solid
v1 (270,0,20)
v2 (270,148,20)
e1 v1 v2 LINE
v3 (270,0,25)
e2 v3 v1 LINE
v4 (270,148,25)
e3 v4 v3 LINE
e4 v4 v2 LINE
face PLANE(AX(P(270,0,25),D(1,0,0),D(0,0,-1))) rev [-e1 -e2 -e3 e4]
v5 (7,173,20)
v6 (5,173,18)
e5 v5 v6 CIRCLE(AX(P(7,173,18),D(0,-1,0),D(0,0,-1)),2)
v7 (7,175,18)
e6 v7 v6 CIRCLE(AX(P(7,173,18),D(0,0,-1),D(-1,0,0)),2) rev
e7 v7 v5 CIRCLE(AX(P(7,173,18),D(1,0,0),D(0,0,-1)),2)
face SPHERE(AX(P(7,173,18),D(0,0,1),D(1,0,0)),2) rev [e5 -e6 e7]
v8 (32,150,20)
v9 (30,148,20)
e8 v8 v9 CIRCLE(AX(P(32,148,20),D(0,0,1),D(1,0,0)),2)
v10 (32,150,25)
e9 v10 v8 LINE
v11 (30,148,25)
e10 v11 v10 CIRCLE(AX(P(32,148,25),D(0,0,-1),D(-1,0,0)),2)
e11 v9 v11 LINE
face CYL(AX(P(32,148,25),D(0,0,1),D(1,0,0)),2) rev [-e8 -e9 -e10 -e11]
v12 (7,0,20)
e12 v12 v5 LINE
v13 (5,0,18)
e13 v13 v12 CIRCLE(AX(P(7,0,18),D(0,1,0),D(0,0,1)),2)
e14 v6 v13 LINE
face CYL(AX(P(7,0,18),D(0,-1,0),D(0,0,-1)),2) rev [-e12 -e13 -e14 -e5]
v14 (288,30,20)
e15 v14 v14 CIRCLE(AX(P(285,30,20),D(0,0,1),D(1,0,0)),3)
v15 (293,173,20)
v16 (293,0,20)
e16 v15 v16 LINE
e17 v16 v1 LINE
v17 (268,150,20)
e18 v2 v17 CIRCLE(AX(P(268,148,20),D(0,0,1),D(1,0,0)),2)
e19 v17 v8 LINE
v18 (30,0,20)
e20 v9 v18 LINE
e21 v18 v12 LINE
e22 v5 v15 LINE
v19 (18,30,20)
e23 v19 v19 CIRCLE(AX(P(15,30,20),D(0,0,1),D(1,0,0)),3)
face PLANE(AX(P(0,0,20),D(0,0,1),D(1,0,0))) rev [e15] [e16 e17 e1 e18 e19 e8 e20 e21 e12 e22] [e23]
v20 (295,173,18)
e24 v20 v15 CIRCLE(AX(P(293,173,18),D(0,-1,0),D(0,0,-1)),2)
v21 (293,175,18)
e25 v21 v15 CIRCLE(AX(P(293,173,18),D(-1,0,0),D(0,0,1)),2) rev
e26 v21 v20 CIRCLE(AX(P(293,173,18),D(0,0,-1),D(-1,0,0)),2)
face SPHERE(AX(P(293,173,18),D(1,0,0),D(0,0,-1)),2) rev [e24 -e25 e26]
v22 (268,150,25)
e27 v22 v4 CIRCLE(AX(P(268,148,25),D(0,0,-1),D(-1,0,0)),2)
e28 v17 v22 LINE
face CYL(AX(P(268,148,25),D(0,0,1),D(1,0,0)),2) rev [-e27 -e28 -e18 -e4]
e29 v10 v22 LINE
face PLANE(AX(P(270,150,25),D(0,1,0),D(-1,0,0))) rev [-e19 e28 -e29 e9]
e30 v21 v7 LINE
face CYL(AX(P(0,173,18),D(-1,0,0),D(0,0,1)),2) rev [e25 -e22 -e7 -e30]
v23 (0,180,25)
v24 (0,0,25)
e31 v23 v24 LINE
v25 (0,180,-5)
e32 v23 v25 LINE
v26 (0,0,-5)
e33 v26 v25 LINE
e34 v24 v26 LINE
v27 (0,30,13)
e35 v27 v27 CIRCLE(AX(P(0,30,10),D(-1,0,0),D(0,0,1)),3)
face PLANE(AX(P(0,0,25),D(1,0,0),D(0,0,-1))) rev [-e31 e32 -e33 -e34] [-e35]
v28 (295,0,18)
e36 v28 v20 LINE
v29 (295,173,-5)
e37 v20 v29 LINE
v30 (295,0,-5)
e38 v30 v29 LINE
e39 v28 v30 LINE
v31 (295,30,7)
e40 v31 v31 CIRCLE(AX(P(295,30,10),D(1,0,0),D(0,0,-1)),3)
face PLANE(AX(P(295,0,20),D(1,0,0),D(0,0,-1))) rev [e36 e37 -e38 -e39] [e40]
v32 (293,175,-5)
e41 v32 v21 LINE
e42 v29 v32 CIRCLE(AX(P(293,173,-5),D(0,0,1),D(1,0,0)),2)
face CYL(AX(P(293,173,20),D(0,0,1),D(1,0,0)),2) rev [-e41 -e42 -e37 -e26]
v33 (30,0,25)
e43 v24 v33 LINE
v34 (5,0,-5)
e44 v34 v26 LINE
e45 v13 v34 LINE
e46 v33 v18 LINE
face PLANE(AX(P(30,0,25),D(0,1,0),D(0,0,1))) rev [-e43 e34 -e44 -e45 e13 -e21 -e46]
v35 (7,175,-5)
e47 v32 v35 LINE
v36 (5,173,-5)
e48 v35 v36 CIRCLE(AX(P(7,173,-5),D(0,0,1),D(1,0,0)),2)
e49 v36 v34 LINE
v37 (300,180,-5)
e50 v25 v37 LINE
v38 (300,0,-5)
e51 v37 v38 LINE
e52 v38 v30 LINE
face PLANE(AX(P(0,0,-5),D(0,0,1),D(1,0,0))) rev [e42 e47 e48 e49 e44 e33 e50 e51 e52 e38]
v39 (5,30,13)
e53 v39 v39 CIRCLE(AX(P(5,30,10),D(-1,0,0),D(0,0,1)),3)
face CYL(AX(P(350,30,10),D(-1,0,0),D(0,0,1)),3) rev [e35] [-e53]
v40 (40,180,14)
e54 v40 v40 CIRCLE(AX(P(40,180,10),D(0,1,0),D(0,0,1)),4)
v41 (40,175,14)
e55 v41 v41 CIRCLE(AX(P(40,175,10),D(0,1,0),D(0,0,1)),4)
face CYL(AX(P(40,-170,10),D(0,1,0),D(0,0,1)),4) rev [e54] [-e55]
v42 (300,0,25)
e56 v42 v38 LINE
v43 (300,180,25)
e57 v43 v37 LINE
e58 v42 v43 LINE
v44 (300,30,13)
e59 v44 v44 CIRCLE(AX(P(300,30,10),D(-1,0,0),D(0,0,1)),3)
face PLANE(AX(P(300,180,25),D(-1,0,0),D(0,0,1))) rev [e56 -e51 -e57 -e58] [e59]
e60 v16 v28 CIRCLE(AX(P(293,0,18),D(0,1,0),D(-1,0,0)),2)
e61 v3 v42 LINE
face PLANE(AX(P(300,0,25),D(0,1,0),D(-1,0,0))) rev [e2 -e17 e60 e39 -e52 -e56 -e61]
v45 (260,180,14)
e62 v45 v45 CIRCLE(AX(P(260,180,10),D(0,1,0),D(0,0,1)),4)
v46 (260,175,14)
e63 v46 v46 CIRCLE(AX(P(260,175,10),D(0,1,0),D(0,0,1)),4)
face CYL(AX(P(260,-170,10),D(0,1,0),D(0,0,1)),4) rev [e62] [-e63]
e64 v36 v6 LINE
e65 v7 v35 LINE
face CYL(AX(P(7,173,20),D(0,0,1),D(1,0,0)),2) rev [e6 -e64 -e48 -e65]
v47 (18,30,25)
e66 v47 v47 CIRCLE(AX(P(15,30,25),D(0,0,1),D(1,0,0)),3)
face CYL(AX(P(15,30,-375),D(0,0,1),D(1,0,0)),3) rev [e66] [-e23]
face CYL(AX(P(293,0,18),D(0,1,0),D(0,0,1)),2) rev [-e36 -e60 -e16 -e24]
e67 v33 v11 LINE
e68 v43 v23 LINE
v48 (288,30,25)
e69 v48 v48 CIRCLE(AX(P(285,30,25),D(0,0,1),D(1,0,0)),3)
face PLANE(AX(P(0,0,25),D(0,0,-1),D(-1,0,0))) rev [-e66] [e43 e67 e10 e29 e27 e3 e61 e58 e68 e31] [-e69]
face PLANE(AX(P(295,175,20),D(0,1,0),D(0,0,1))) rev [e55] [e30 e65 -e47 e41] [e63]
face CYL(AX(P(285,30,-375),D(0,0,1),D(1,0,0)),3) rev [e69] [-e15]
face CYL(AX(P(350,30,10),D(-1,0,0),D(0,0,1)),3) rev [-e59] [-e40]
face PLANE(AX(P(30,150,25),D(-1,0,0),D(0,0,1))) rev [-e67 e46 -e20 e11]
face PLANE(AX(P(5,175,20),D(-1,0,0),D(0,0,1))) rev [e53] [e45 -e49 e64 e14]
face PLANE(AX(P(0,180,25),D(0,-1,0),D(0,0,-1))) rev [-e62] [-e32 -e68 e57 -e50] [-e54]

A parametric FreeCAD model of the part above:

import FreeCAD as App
import Part
import Sketcher


def edges_at(feature, points):
    """Names of the edges that pass closest to the given points."""
    edges = feature.Shape.Edges
    near = lambda p: min(range(len(edges)), key=lambda i: edges[i].distToShape(Part.Vertex(*p))[0])
    return sorted({f"Edge{near(p) + 1}" for p in points})

doc = App.newDocument("Part")
params = doc.addObject("Spreadsheet::Sheet", "Params")
for row, (alias, value) in enumerate([
    ("sketch1_width", "30 mm"),
    ("sketch1_width2", "240 mm"),
    ("sketch1_height", "180 mm"),
    ("sketch1_height2", "150 mm"),
    ("pad1_length", "25 mm"),
    ("sketch2_width", "25 mm"),
    ("sketch2_width2", "290 mm"),
    ("sketch2_height", "175 mm"),
    ("sketch2_height2", "150 mm"),
    ("pocket1_length", "20 mm"),
    ("sketch3_diameter", "6 mm"),
    ("pocket2_length", "400 mm"),
    ("sketch4_width", "5 mm"),
    ("sketch4_width2", "290 mm"),
    ("sketch4_height", "180 mm"),
    ("sketch4_height2", "175 mm"),
    ("pad2_length", "5 mm"),
    ("sketch5_diameter", "6 mm"),
    ("pocket3_length", "350 mm"),
    ("fillet_radius", "2 mm"),
    ("sketch6_diameter", "8 mm"),
    ("pocket4_length", "350 mm"),
], start=1):
    params.set(f"A{row}", alias)
    params.set(f"B{row}", "=" + value)
    params.setAlias(f"B{row}", alias)

body = doc.addObject("PartDesign::Body", "Body")

# Sketch on XY plane
sketch1 = body.newObject("Sketcher::SketchObject", "Sketch")
sketch1.AttachmentSupport = (doc.getObject("XY_Plane"), [""])
sketch1.MapMode = "FlatFace"
sketch1.addGeometry([
    Part.LineSegment(App.Vector(0, 180, 0), App.Vector(0, 0, 0)),  # 0
    Part.LineSegment(App.Vector(0, 0, 0), App.Vector(30, 0, 0)),  # 1
    Part.LineSegment(App.Vector(30, 0, 0), App.Vector(30, 150, 0)),  # 2
    Part.LineSegment(App.Vector(30, 150, 0), App.Vector(270, 150, 0)),  # 3
    Part.LineSegment(App.Vector(270, 150, 0), App.Vector(270, 0, 0)),  # 4
    Part.LineSegment(App.Vector(270, 0, 0), App.Vector(300, 0, 0)),  # 5
    Part.LineSegment(App.Vector(300, 0, 0), App.Vector(300, 180, 0)),  # 6
    Part.LineSegment(App.Vector(300, 180, 0), App.Vector(0, 180, 0)),  # 7
], False)
sketch1.addConstraint([
    Sketcher.Constraint("Coincident", 0, 2, 1, 1),
    Sketcher.Constraint("Coincident", 1, 2, 2, 1),
    Sketcher.Constraint("Coincident", 2, 2, 3, 1),
    Sketcher.Constraint("Coincident", 3, 2, 4, 1),
    Sketcher.Constraint("Coincident", 4, 2, 5, 1),
    Sketcher.Constraint("Coincident", 5, 2, 6, 1),
    Sketcher.Constraint("Coincident", 6, 2, 7, 1),
    Sketcher.Constraint("Coincident", 7, 2, 0, 1),
    Sketcher.Constraint("Vertical", 0),
    Sketcher.Constraint("Horizontal", 1),
    Sketcher.Constraint("Vertical", 2),
    Sketcher.Constraint("Horizontal", 3),
    Sketcher.Constraint("Vertical", 4),
    Sketcher.Constraint("Horizontal", 5),
    Sketcher.Constraint("Vertical", 6),
    Sketcher.Constraint("Horizontal", 7),
    Sketcher.Constraint("Coincident", 0, 2, -1, 1),
    Sketcher.Constraint("PointOnObject", 4, 2, -1),
    Sketcher.Constraint("Equal", 1, 5),
    Sketcher.Constraint("DistanceX", 1, 1, 1, 2, 30.0),
    Sketcher.Constraint("DistanceX", 3, 1, 3, 2, 240.0),
    Sketcher.Constraint("DistanceY", 0, 2, 0, 1, 180.0),
    Sketcher.Constraint("DistanceY", 2, 1, 2, 2, 150.0),
])
sketch1.setExpression("Constraints[19]", "Params.sketch1_width")
sketch1.setExpression("Constraints[20]", "Params.sketch1_width2")
sketch1.setExpression("Constraints[21]", "Params.sketch1_height")
sketch1.setExpression("Constraints[22]", "Params.sketch1_height2")
pad1 = body.newObject("PartDesign::Pad", "Pad")
pad1.Profile = sketch1
pad1.setExpression("Length", "Params.pad1_length")

# Sketch on XY plane
sketch2 = body.newObject("Sketcher::SketchObject", "Sketch001")
sketch2.AttachmentSupport = (doc.getObject("XY_Plane"), [""])
sketch2.MapMode = "FlatFace"
sketch2.addGeometry([
    Part.LineSegment(App.Vector(30, 0, 0), App.Vector(5, 0, 0)),  # 0
    Part.LineSegment(App.Vector(5, 0, 0), App.Vector(5, 175, 0)),  # 1
    Part.LineSegment(App.Vector(5, 175, 0), App.Vector(295, 175, 0)),  # 2
    Part.LineSegment(App.Vector(295, 175, 0), App.Vector(295, 0, 0)),  # 3
    Part.LineSegment(App.Vector(295, 0, 0), App.Vector(270, 0, 0)),  # 4
    Part.LineSegment(App.Vector(270, 0, 0), App.Vector(270, 150, 0)),  # 5
    Part.LineSegment(App.Vector(270, 150, 0), App.Vector(30, 150, 0)),  # 6
    Part.LineSegment(App.Vector(30, 150, 0), App.Vector(30, 0, 0)),  # 7
], False)
sketch2.addConstraint([
    Sketcher.Constraint("Coincident", 0, 2, 1, 1),
    Sketcher.Constraint("Coincident", 1, 2, 2, 1),
    Sketcher.Constraint("Coincident", 2, 2, 3, 1),
    Sketcher.Constraint("Coincident", 3, 2, 4, 1),
    Sketcher.Constraint("Coincident", 4, 2, 5, 1),
    Sketcher.Constraint("Coincident", 5, 2, 6, 1),
    Sketcher.Constraint("Coincident", 6, 2, 7, 1),
    Sketcher.Constraint("Coincident", 7, 2, 0, 1),
    Sketcher.Constraint("Horizontal", 0),
    Sketcher.Constraint("Vertical", 1),
    Sketcher.Constraint("Horizontal", 2),
    Sketcher.Constraint("Vertical", 3),
    Sketcher.Constraint("Horizontal", 4),
    Sketcher.Constraint("Vertical", 5),
    Sketcher.Constraint("Horizontal", 6),
    Sketcher.Constraint("Vertical", 7),
    Sketcher.Constraint("PointOnObject", 0, 2, -1),
    Sketcher.Constraint("PointOnObject", 3, 2, -1),
    Sketcher.Constraint("Equal", 0, 4),
    Sketcher.Constraint("DistanceX", 0, 2, 0, 1, 25.0),
    Sketcher.Constraint("DistanceX", 2, 1, 2, 2, 290.0),
    Sketcher.Constraint("DistanceY", 1, 1, 1, 2, 175.0),
    Sketcher.Constraint("DistanceY", 5, 1, 5, 2, 150.0),
    Sketcher.Constraint("DistanceX", -1, 1, 0, 2, 5.0),
])
sketch2.setExpression("Constraints[19]", "Params.sketch2_width")
sketch2.setExpression("Constraints[20]", "Params.sketch2_width2")
sketch2.setExpression("Constraints[21]", "Params.sketch2_height")
sketch2.setExpression("Constraints[22]", "Params.sketch2_height2")
pocket1 = body.newObject("PartDesign::Pocket", "Pocket")
pocket1.Profile = sketch2
pocket1.setExpression("Length", "Params.pocket1_length")
pocket1.Reversed = True

# Sketch on XY plane
sketch3 = body.newObject("Sketcher::SketchObject", "Sketch002")
sketch3.AttachmentSupport = (doc.getObject("XY_Plane"), [""])
sketch3.MapMode = "FlatFace"
sketch3.AttachmentOffset = App.Placement(App.Vector(0, 0, 25), App.Rotation())
sketch3.addGeometry([
    Part.Circle(App.Vector(15, 30, 0), App.Vector(0, 0, 1), 3),
    Part.Circle(App.Vector(285, 30, 0), App.Vector(0, 0, 1), 3),
], False)
sketch3.addConstraint([
    Sketcher.Constraint("Equal", 0, 1),
    Sketcher.Constraint("Horizontal", 0, 3, 1, 3),
    Sketcher.Constraint("Diameter", 0, 6.0),
    Sketcher.Constraint("DistanceX", -1, 1, 0, 3, 15.0),
    Sketcher.Constraint("DistanceY", -1, 1, 0, 3, 30.0),
    Sketcher.Constraint("DistanceX", -1, 1, 1, 3, 285.0),
])
sketch3.setExpression("Constraints[2]", "Params.sketch3_diameter")
pocket2 = body.newObject("PartDesign::Pocket", "Pocket001")
pocket2.Profile = sketch3
pocket2.setExpression("Length", "Params.pocket2_length")

# Sketch on XY plane
sketch4 = body.newObject("Sketcher::SketchObject", "Sketch003")
sketch4.AttachmentSupport = (doc.getObject("XY_Plane"), [""])
sketch4.MapMode = "FlatFace"
sketch4.addGeometry([
    Part.LineSegment(App.Vector(300, 180, 0), App.Vector(300, 0, 0)),  # 0
    Part.LineSegment(App.Vector(300, 0, 0), App.Vector(295, 0, 0)),  # 1
    Part.LineSegment(App.Vector(295, 0, 0), App.Vector(295, 175, 0)),  # 2
    Part.LineSegment(App.Vector(295, 175, 0), App.Vector(5, 175, 0)),  # 3
    Part.LineSegment(App.Vector(5, 175, 0), App.Vector(5, 0, 0)),  # 4
    Part.LineSegment(App.Vector(5, 0, 0), App.Vector(0, 0, 0)),  # 5
    Part.LineSegment(App.Vector(0, 0, 0), App.Vector(0, 180, 0)),  # 6
    Part.LineSegment(App.Vector(0, 180, 0), App.Vector(300, 180, 0)),  # 7
], False)
sketch4.addConstraint([
    Sketcher.Constraint("Coincident", 0, 2, 1, 1),
    Sketcher.Constraint("Coincident", 1, 2, 2, 1),
    Sketcher.Constraint("Coincident", 2, 2, 3, 1),
    Sketcher.Constraint("Coincident", 3, 2, 4, 1),
    Sketcher.Constraint("Coincident", 4, 2, 5, 1),
    Sketcher.Constraint("Coincident", 5, 2, 6, 1),
    Sketcher.Constraint("Coincident", 6, 2, 7, 1),
    Sketcher.Constraint("Coincident", 7, 2, 0, 1),
    Sketcher.Constraint("Vertical", 0),
    Sketcher.Constraint("Horizontal", 1),
    Sketcher.Constraint("Vertical", 2),
    Sketcher.Constraint("Horizontal", 3),
    Sketcher.Constraint("Vertical", 4),
    Sketcher.Constraint("Horizontal", 5),
    Sketcher.Constraint("Vertical", 6),
    Sketcher.Constraint("Horizontal", 7),
    Sketcher.Constraint("Coincident", 5, 2, -1, 1),
    Sketcher.Constraint("PointOnObject", 0, 2, -1),
    Sketcher.Constraint("Equal", 1, 5),
    Sketcher.Constraint("DistanceX", 1, 2, 1, 1, 5.0),
    Sketcher.Constraint("DistanceX", 3, 2, 3, 1, 290.0),
    Sketcher.Constraint("DistanceY", 0, 2, 0, 1, 180.0),
    Sketcher.Constraint("DistanceY", 2, 1, 2, 2, 175.0),
])
sketch4.setExpression("Constraints[19]", "Params.sketch4_width")
sketch4.setExpression("Constraints[20]", "Params.sketch4_width2")
sketch4.setExpression("Constraints[21]", "Params.sketch4_height")
sketch4.setExpression("Constraints[22]", "Params.sketch4_height2")
pad2 = body.newObject("PartDesign::Pad", "Pad001")
pad2.Profile = sketch4
pad2.setExpression("Length", "Params.pad2_length")
pad2.Reversed = True

# Sketch on YZ plane
sketch5 = body.newObject("Sketcher::SketchObject", "Sketch004")
sketch5.AttachmentSupport = (doc.getObject("YZ_Plane"), [""])
sketch5.MapMode = "FlatFace"
sketch5.addGeometry(Part.Circle(App.Vector(30, 10, 0), App.Vector(0, 0, 1), 3), False)
sketch5.addConstraint([
    Sketcher.Constraint("Diameter", 0, 6.0),
    Sketcher.Constraint("DistanceX", -1, 1, 0, 3, 30.0),
    Sketcher.Constraint("DistanceY", -1, 1, 0, 3, 10.0),
])
sketch5.setExpression("Constraints[0]", "Params.sketch5_diameter")
pocket3 = body.newObject("PartDesign::Pocket", "Pocket002")
pocket3.Profile = sketch5
pocket3.setExpression("Length", "Params.pocket3_length")
pocket3.Reversed = True
doc.recompute()

fillet = body.newObject("PartDesign::Fillet", "Fillet")
fillet.Base = (pocket3, edges_at(pocket3, [
    (270, 150, 22.5),
    (30, 150, 22.5),
    (5, 87.5, 20),
    (5, 175, 7.5),
    (295, 87.5, 20),
    (150, 175, 20),
    (295, 175, 7.5),
]))
fillet.setExpression("Radius", "Params.fillet_radius")

# Sketch on XZ plane
sketch6 = body.newObject("Sketcher::SketchObject", "Sketch005")
sketch6.AttachmentSupport = (doc.getObject("XZ_Plane"), [""])
sketch6.MapMode = "FlatFace"
sketch6.AttachmentOffset = App.Placement(App.Vector(0, 0, -180), App.Rotation())
sketch6.addGeometry([
    Part.Circle(App.Vector(40, 10, 0), App.Vector(0, 0, 1), 4),
    Part.Circle(App.Vector(260, 10, 0), App.Vector(0, 0, 1), 4),
], False)
sketch6.addConstraint([
    Sketcher.Constraint("Equal", 0, 1),
    Sketcher.Constraint("Horizontal", 0, 3, 1, 3),
    Sketcher.Constraint("Diameter", 0, 8.0),
    Sketcher.Constraint("DistanceX", -1, 1, 0, 3, 40.0),
    Sketcher.Constraint("DistanceY", -1, 1, 0, 3, 10.0),
    Sketcher.Constraint("DistanceX", -1, 1, 1, 3, 260.0),
])
sketch6.setExpression("Constraints[2]", "Params.sketch6_diameter")
pocket4 = body.newObject("PartDesign::Pocket", "Pocket003")
pocket4.Profile = sketch6
pocket4.setExpression("Length", "Params.pocket4_length")
pocket4.Reversed = True

doc.recompute()
